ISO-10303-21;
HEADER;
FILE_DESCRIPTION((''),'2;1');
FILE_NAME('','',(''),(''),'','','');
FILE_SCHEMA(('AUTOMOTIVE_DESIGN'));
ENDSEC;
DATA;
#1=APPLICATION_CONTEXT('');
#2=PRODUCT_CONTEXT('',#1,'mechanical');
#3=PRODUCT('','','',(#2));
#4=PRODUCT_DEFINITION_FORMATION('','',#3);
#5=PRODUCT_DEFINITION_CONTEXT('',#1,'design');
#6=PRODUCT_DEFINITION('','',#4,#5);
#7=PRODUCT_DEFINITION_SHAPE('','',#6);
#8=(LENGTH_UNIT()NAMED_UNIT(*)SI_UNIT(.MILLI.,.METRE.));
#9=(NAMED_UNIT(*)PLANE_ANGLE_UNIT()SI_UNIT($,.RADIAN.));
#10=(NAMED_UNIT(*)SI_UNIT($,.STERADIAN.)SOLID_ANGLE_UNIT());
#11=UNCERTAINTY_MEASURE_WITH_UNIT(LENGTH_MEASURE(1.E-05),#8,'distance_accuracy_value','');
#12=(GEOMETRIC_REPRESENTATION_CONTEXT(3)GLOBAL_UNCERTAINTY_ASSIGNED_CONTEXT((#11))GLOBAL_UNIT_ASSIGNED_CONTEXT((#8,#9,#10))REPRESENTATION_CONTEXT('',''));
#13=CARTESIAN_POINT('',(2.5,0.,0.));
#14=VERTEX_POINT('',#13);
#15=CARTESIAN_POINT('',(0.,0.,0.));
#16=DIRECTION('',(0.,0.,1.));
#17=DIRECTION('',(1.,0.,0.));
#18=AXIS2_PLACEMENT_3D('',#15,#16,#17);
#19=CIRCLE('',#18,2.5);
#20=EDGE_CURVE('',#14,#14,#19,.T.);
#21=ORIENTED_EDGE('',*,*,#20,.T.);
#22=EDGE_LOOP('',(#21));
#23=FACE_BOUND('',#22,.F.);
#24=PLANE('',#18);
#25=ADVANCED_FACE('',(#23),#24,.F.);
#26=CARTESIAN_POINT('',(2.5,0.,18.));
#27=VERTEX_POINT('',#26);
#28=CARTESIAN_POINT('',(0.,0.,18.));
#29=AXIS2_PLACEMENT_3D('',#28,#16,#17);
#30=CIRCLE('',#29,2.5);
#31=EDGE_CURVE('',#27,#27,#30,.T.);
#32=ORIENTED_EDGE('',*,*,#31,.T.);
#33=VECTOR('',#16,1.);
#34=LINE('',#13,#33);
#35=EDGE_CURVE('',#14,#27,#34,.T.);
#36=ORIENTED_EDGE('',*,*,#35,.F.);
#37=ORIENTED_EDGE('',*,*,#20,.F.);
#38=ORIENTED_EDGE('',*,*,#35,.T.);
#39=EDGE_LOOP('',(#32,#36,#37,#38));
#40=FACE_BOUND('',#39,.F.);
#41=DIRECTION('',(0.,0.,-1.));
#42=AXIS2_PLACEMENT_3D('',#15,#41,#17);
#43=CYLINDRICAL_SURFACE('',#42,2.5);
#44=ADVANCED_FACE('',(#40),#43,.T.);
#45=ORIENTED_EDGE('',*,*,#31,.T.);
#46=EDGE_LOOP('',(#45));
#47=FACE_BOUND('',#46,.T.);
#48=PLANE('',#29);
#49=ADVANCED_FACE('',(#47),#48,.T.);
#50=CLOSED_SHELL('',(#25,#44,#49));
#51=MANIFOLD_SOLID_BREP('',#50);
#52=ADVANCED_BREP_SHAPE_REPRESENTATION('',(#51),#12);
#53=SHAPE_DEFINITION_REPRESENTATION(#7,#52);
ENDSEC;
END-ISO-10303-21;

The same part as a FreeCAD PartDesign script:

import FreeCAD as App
import Part
import Sketcher

doc = App.newDocument("Part")
body = doc.addObject("PartDesign::Body", "Body")

# Sketch on XY plane
sketch1 = body.newObject("Sketcher::SketchObject", "Sketch")
sketch1.AttachmentSupport = (doc.getObject("XY_Plane"), [""])
sketch1.MapMode = "FlatFace"
sketch1.addGeometry(Part.Circle(App.Vector(0, 0, 0), App.Vector(0, 0, 1), 2.5), False)
sketch1.addConstraint(Sketcher.Constraint("Coincident", 0, 3, -1, 1))
sketch1.addConstraint(Sketcher.Constraint("Diameter", 0, 5.0))
pad1 = body.newObject("PartDesign::Pad", "Pad")
pad1.Profile = sketch1
pad1.Length = 18

doc.recompute()
